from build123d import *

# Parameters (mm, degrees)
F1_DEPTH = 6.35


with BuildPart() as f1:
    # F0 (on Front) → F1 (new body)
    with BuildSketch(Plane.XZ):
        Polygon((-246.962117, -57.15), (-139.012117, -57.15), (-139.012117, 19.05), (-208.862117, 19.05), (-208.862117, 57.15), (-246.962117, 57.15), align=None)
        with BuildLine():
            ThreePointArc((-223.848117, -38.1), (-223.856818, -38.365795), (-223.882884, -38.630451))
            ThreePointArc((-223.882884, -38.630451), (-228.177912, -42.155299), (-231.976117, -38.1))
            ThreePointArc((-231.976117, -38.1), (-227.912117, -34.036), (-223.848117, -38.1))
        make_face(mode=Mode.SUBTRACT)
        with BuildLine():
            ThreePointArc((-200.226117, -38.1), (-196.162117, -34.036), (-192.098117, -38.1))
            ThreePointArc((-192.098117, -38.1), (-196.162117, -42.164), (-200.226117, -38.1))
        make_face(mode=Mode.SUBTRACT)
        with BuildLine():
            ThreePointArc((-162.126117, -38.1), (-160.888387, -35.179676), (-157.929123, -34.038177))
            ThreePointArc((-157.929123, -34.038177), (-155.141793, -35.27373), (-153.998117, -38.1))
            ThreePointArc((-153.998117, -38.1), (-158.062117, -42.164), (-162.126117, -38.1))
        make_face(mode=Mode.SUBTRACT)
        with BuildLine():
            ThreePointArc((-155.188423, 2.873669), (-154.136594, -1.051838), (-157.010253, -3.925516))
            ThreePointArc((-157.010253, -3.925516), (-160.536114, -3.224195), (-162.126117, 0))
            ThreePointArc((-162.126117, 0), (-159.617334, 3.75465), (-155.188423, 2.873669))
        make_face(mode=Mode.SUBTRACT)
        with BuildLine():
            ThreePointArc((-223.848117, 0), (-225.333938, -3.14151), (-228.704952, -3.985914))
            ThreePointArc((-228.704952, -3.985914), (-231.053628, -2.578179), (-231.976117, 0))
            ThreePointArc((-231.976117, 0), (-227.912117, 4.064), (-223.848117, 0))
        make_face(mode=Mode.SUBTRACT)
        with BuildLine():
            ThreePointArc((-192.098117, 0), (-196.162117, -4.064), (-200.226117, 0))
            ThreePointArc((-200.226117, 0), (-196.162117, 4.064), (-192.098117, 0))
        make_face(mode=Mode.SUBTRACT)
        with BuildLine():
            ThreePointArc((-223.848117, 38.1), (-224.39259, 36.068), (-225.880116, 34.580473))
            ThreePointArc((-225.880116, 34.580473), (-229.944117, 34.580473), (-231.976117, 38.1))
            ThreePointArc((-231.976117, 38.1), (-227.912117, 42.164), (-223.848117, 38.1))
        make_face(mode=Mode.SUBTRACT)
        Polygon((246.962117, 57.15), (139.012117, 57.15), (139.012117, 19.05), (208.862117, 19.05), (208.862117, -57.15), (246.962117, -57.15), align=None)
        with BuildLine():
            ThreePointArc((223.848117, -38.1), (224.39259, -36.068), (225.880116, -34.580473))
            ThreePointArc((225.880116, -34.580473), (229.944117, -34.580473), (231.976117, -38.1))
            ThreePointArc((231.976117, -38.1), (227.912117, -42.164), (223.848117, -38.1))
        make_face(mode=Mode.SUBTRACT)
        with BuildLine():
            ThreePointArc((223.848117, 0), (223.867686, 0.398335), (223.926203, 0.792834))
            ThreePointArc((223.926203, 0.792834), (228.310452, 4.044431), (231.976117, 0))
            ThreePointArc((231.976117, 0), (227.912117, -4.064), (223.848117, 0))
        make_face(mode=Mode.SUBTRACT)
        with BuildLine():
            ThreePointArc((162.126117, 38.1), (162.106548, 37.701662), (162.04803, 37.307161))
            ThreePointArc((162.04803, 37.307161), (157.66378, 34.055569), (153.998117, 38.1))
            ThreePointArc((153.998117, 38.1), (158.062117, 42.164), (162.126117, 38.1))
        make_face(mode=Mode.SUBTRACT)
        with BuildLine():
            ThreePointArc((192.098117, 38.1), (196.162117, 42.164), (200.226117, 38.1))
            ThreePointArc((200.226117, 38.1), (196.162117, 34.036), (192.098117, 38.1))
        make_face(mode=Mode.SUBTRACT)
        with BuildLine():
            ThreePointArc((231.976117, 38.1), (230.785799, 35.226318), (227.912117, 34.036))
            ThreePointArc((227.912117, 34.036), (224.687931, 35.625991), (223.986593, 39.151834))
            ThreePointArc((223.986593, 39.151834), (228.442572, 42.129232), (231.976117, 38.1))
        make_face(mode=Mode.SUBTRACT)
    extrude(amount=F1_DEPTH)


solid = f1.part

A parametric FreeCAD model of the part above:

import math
import FreeCAD as App
import Part
import Sketcher
from FreeCAD import Vector
Q = App.Units.Quantity

doc = App.newDocument("Part")
body = doc.addObject("PartDesign::Body", "Body")
body.AllowCompound = True

sketch1 = doc.addObject("Sketcher::SketchObject", "Sketch")
body.addObject(sketch1)
sketch1.AttachmentSupport = (doc.XZ_Plane, [""])
sketch1.MapMode = "FlatFace"
sketch1.addGeometry([
    Part.LineSegment(Vector(-246.962117, -57.15, 0), Vector(-139.012117, -57.15, 0)),
    Part.LineSegment(Vector(-139.012117, -57.15, 0), Vector(-139.012117, 19.05, 0)),
    Part.LineSegment(Vector(-139.012117, 19.05, 0), Vector(-208.862117, 19.05, 0)),
    Part.LineSegment(Vector(-208.862117, 19.05, 0), Vector(-208.862117, 57.15, 0)),
    Part.LineSegment(Vector(-208.862117, 57.15, 0), Vector(-246.962117, 57.15, 0)),
    Part.LineSegment(Vector(-246.962117, 57.15, 0), Vector(-246.962117, -57.15, 0)),
    Part.ArcOfCircle(Part.Circle(Vector(-227.912117, -38.1, 0), Vector(0, 0, 1), 4.064), math.radians(0), math.radians(180)),
    Part.ArcOfCircle(Part.Circle(Vector(-227.912086, -38.100003, 0), Vector(0, 0, 1), 4.063969), math.radians(-7.499912), math.radians(0.00004)),
    Part.ArcOfCircle(Part.Circle(Vector(-227.912117, -38.1, 0), Vector(0, 0, 1), 4.064), math.radians(179.999999), math.radians(352.500107)),
    Part.Circle(Vector(-196.162117, -38.1, 0), Vector(0, 0, 1), 4.064),
    Part.ArcOfCircle(Part.Circle(Vector(-158.062117, -38.1, 0), Vector(0, 0, 1), 4.064), math.radians(180), math.radians(360)),
    Part.ArcOfCircle(Part.Circle(Vector(-158.062117, -38.1, 0), Vector(0, 0, 1), 4.064), math.radians(88.124666), math.radians(179.999996)),
    Part.ArcOfCircle(Part.Circle(Vector(-158.062117, -38.1, 0), Vector(0, 0, 1), 4.064), math.radians(0.000004), math.radians(88.124667)),
    Part.ArcOfCircle(Part.Circle(Vector(-227.912117, 0, 0), Vector(0, 0, 1), 4.064), math.radians(0), math.radians(180)),
    Part.ArcOfCircle(Part.Circle(Vector(-227.912118, 0.000001, 0), Vector(0, 0, 1), 4.064001), math.radians(-101.249807), math.radians(-0.000017)),
    Part.ArcOfCircle(Part.Circle(Vector(-227.912117, -0.000001, 0), Vector(0, 0, 1), 4.064), math.radians(179.999991), math.radians(258.750179)),
    Part.Circle(Vector(-196.162117, 0, 0), Vector(0, 0, 1), 4.064),
    Part.ArcOfCircle(Part.Circle(Vector(-227.912117, 38.1, 0), Vector(0, 0, 1), 4.064), math.radians(0), math.radians(180)),
    Part.ArcOfCircle(Part.Circle(Vector(-227.912119, 38.100001, 0), Vector(0, 0, 1), 4.064002), math.radians(-59.999964), math.radians(-0.000015)),
    Part.ArcOfCircle(Part.Circle(Vector(-227.912116, 38.100001, 0), Vector(0, 0, 1), 4.064), math.radians(-179.999993), math.radians(-59.999996)),
    Part.ArcOfCircle(Part.Circle(Vector(-158.062118, 0, 0), Vector(0, 0, 1), 4.063999), math.radians(44.999741), math.radians(180.000006)),
    Part.ArcOfCircle(Part.Circle(Vector(-158.062117, 0, 0), Vector(0, 0, 1), 4.063999), math.radians(-74.999661), math.radians(44.999758)),
    Part.ArcOfCircle(Part.Circle(Vector(-158.062117, 0, 0), Vector(0, 0, 1), 4.064), math.radians(-179.999997), math.radians(-74.999657)),
    Part.LineSegment(Vector(246.962117, 57.15, 0), Vector(139.012117, 57.15, 0)),
    Part.LineSegment(Vector(139.012117, 57.15, 0), Vector(139.012117, 19.05, 0)),
    Part.LineSegment(Vector(139.012117, 19.05, 0), Vector(208.862117, 19.05, 0)),
    Part.LineSegment(Vector(208.862117, 19.05, 0), Vector(208.862117, -57.15, 0)),
    Part.LineSegment(Vector(208.862117, -57.15, 0), Vector(246.962117, -57.15, 0)),
    Part.LineSegment(Vector(246.962117, -57.15, 0), Vector(246.962117, 57.15, 0)),
    Part.ArcOfCircle(Part.Circle(Vector(227.912117, -38.1, 0), Vector(0, 0, 1), 4.064), math.radians(180), math.radians(360)),
    Part.ArcOfCircle(Part.Circle(Vector(227.912119, -38.100001, 0), Vector(0, 0, 1), 4.064002), math.radians(120.000036), math.radians(179.999985)),
    Part.ArcOfCircle(Part.Circle(Vector(227.912116, -38.100001, 0), Vector(0, 0, 1), 4.064), math.radians(0.000007), math.radians(120.000004)),
    Part.ArcOfCircle(Part.Circle(Vector(227.912117, 0, 0), Vector(0, 0, 1), 4.064), math.radians(180), math.radians(360)),
    Part.ArcOfCircle(Part.Circle(Vector(227.912198, -0.000008, 0), Vector(0, 0, 1), 4.064081), math.radians(168.750302), math.radians(179.999889)),
    Part.ArcOfCircle(Part.Circle(Vector(227.912117, 0, 0), Vector(0, 0, 1), 4.064), math.radians(0.000006), math.radians(168.750182)),
    Part.ArcOfCircle(Part.Circle(Vector(158.062117, 38.1, 0), Vector(0, 0, 1), 4.064), math.radians(0), math.radians(180)),
    Part.ArcOfCircle(Part.Circle(Vector(158.062097, 38.100002, 0), Vector(0, 0, 1), 4.06402), math.radians(-11.249855), math.radians(-0.000027)),
    Part.ArcOfCircle(Part.Circle(Vector(158.062117, 38.1, 0), Vector(0, 0, 1), 4.064), math.radians(-179.999997), math.radians(-11.249887)),
    Part.Circle(Vector(196.162117, 38.1, 0), Vector(0, 0, 1), 4.064),
    Part.ArcOfCircle(Part.Circle(Vector(227.912117, 38.1, 0), Vector(0, 0, 1), 4.064), math.radians(0.000004), math.radians(165.000092)),
    Part.ArcOfCircle(Part.Circle(Vector(227.912117, 38.1, 0), Vector(0, 0, 1), 4.064), math.radians(-90.000002), math.radians(0.000002)),
    Part.ArcOfCircle(Part.Circle(Vector(227.912117, 38.1, 0), Vector(0, 0, 1), 4.064), math.radians(165.000089), math.radians(270.000002)),
], False)
sketch1.addConstraint([
    Sketcher.Constraint("Coincident", 0, 2, 1, 1),
    Sketcher.Constraint("Coincident", 1, 2, 2, 1),
    Sketcher.Constraint("Coincident", 2, 2, 3, 1),
    Sketcher.Constraint("Coincident", 3, 2, 4, 1),
    Sketcher.Constraint("Coincident", 4, 2, 5, 1),
    Sketcher.Constraint("Coincident", 5, 2, 0, 1),
    Sketcher.Constraint("Coincident", 6, 1, 7, 2),
    Sketcher.Constraint("Coincident", 7, 1, 8, 2),
    Sketcher.Constraint("Coincident", 8, 1, 6, 2),
    Sketcher.Constraint("Coincident", 10, 1, 11, 2),
    Sketcher.Constraint("Coincident", 11, 1, 12, 2),
    Sketcher.Constraint("Coincident", 12, 1, 10, 2),
    Sketcher.Constraint("Coincident", 13, 1, 14, 2),
    Sketcher.Constraint("Coincident", 14, 1, 15, 2),
    Sketcher.Constraint("Coincident", 15, 1, 13, 2),
    Sketcher.Constraint("Coincident", 17, 1, 18, 2),
    Sketcher.Constraint("Coincident", 18, 1, 19, 2),
    Sketcher.Constraint("Coincident", 19, 1, 17, 2),
    Sketcher.Constraint("Coincident", 20, 1, 21, 2),
    Sketcher.Constraint("Coincident", 21, 1, 22, 2),
    Sketcher.Constraint("Coincident", 22, 1, 20, 2),
    Sketcher.Constraint("Coincident", 23, 2, 24, 1),
    Sketcher.Constraint("Coincident", 24, 2, 25, 1),
    Sketcher.Constraint("Coincident", 25, 2, 26, 1),
    Sketcher.Constraint("Coincident", 26, 2, 27, 1),
    Sketcher.Constraint("Coincident", 27, 2, 28, 1),
    Sketcher.Constraint("Coincident", 28, 2, 23, 1),
    Sketcher.Constraint("Coincident", 29, 1, 30, 2),
    Sketcher.Constraint("Coincident", 30, 1, 31, 2),
    Sketcher.Constraint("Coincident", 31, 1, 29, 2),
    Sketcher.Constraint("Coincident", 32, 1, 33, 2),
    Sketcher.Constraint("Coincident", 33, 1, 34, 2),
    Sketcher.Constraint("Coincident", 34, 1, 32, 2),
    Sketcher.Constraint("Coincident", 35, 1, 36, 2),
    Sketcher.Constraint("Coincident", 36, 1, 37, 2),
    Sketcher.Constraint("Coincident", 37, 1, 35, 2),
    Sketcher.Constraint("Coincident", 39, 1, 40, 2),
    Sketcher.Constraint("Coincident", 40, 1, 41, 2),
    Sketcher.Constraint("Coincident", 41, 1, 39, 2),
    Sketcher.Constraint("Horizontal", 0),
    Sketcher.Constraint("Vertical", 1),
    Sketcher.Constraint("Horizontal", 2),
    Sketcher.Constraint("Vertical", 3),
    Sketcher.Constraint("Horizontal", 4),
    Sketcher.Constraint("Vertical", 5),
    Sketcher.Constraint("Horizontal", 23),
    Sketcher.Constraint("Vertical", 24),
    Sketcher.Constraint("Horizontal", 25),
    Sketcher.Constraint("Vertical", 26),
    Sketcher.Constraint("Horizontal", 27),
    Sketcher.Constraint("Vertical", 28),
    Sketcher.Constraint("Coincident", 8, 3, 6, 3),
    Sketcher.Constraint("Coincident", 11, 3, 10, 3),
    Sketcher.Constraint("Coincident", 14, 3, 13, 3),
    Sketcher.Constraint("Coincident", 18, 3, 17, 3),
    Sketcher.Constraint("Coincident", 21, 3, 20, 3),
    Sketcher.Constraint("Coincident", 30, 3, 29, 3),
    Sketcher.Constraint("Coincident", 34, 3, 32, 3),
    Sketcher.Constraint("Coincident", 37, 3, 35, 3),
    Sketcher.Constraint("Coincident", 40, 3, 39, 3),
    Sketcher.Constraint("PointOnObject", 13, 3, -1),
    Sketcher.Constraint("PointOnObject", 15, 3, -1),
    Sketcher.Constraint("PointOnObject", 16, 3, -1),
    Sketcher.Constraint("PointOnObject", 20, 3, -1),
    Sketcher.Constraint("PointOnObject", 22, 3, -1),
    Sketcher.Constraint("PointOnObject", 32, 3, -1),
    Sketcher.Constraint("PointOnObject", 13, 1, -1),
    Sketcher.Constraint("PointOnObject", 15, 1, -1),
    Sketcher.Constraint("PointOnObject", 22, 1, -1),
    Sketcher.Constraint("PointOnObject", 32, 1, -1),
    Sketcher.Constraint("PointOnObject", 34, 1, -1),
    Sketcher.Constraint("Diameter", 9, Q("0.32 in")),
    Sketcher.Constraint("Diameter", 16, Q("0.32 in")),
    Sketcher.Constraint("Diameter", 38, Q("0.32 in")),
    Sketcher.Constraint("DistanceY", 1, 1, 1, 2, Q("3 in")),
    Sketcher.Constraint("DistanceY", 26, 2, 26, 1, Q("3 in")),
    Sketcher.Constraint("Radius", 6, Q("0.16 in")),
    Sketcher.Constraint("Radius", 10, Q("0.16 in")),
    Sketcher.Constraint("Radius", 12, Q("0.16 in")),
    Sketcher.Constraint("Radius", 13, Q("0.16 in")),
    Sketcher.Constraint("Radius", 17, Q("0.16 in")),
    Sketcher.Constraint("Radius", 19, Q("0.16 in")),
    Sketcher.Constraint("Radius", 20, Q("0.16 in")),
    Sketcher.Constraint("Radius", 29, Q("0.16 in")),
    Sketcher.Constraint("Radius", 31, Q("0.16 in")),
    Sketcher.Constraint("Radius", 32, Q("0.16 in")),
    Sketcher.Constraint("Radius", 35, Q("0.16 in")),
    Sketcher.Constraint("Radius", 39, Q("0.16 in")),
    Sketcher.Constraint("Radius", 41, Q("0.16 in")),
    Sketcher.Constraint("DistanceX", 4, 2, 4, 1, Q("1.5 in")),
    Sketcher.Constraint("DistanceX", 27, 1, 27, 2, Q("1.5 in")),
    Sketcher.Constraint("DistanceY", 3, 1, 3, 2, Q("1.5 in")),
    Sketcher.Constraint("DistanceY", 24, 2, 24, 1, Q("1.5 in")),
    Sketcher.Constraint("DistanceX", 0, 1, 0, 2, Q("4.25 in")),
    Sketcher.Constraint("DistanceX", 23, 2, 23, 1, Q("4.25 in")),
    Sketcher.Constraint("DistanceY", 6, 3, -1, 1, Q("1.5 in")),
    Sketcher.Constraint("DistanceY", 7, 3, -1, 1, Q("1.5000001 in")),
    Sketcher.Constraint("DistanceY", 9, 3, -1, 1, Q("1.5 in")),
    Sketcher.Constraint("DistanceY", 10, 3, -1, 1, Q("1.5 in")),
    Sketcher.Constraint("DistanceY", -1, 1, 17, 3, Q("1.5 in")),
    Sketcher.Constraint("DistanceY", 29, 3, -1, 1, Q("1.5 in")),
    Sketcher.Constraint("DistanceY", -1, 1, 35, 3, Q("1.5 in")),
    Sketcher.Constraint("DistanceY", -1, 1, 36, 3, Q("1.5000001 in")),
    Sketcher.Constraint("DistanceY", -1, 1, 38, 3, Q("1.5 in")),
    Sketcher.Constraint("DistanceY", -1, 1, 39, 3, Q("1.5 in")),
    Sketcher.Constraint("DistanceY", 6, 1, -1, 1, Q("1.5 in")),
    Sketcher.Constraint("DistanceY", 8, 1, -1, 1, Q("1.5 in")),
    Sketcher.Constraint("DistanceY", 10, 1, -1, 1, Q("1.5 in")),
    Sketcher.Constraint("DistanceY", 12, 1, -1, 1, Q("1.5 in")),
    Sketcher.Constraint("DistanceY", -1, 1, 17, 1, Q("1.5 in")),
    Sketcher.Constraint("DistanceY", -1, 1, 19, 1, Q("1.5 in")),
    Sketcher.Constraint("DistanceY", 29, 1, -1, 1, Q("1.5 in")),
    Sketcher.Constraint("DistanceY", 31, 1, -1, 1, Q("1.5 in")),
    Sketcher.Constraint("DistanceY", -1, 1, 35, 1, Q("1.5 in")),
    Sketcher.Constraint("DistanceY", -1, 1, 37, 1, Q("1.5 in")),
    Sketcher.Constraint("DistanceY", -1, 1, 39, 1, Q("1.5 in")),
    Sketcher.Constraint("DistanceY", 0, 2, -1, 1, Q("2.25 in")),
    Sketcher.Constraint("DistanceY", -1, 1, 23, 2, Q("2.25 in")),
    Sketcher.Constraint("Radius", 33, 4.064081),
    Sketcher.Constraint("DistanceX", -1, 1, 33, 3, 227.912198),
    Sketcher.Constraint("DistanceX", 14, 3, -1, 1, 227.912118),
    Sketcher.Constraint("DistanceX", 18, 3, -1, 1, 227.912119),
    Sketcher.Constraint("DistanceX", -1, 1, 30, 3, 227.912119),
    Sketcher.Constraint("DistanceY", 7, 1, -1, 1, 38.630451),
    Sketcher.Constraint("DistanceX", 14, 1, -1, 1, 228.704952),
    Sketcher.Constraint("DistanceY", -1, 1, 20, 1, 2.873669),
    Sketcher.Constraint("DistanceX", -1, 1, 36, 1, 162.04803),
    Sketcher.Constraint("DistanceY", -1, 1, 36, 1, 37.307161),
    Sketcher.Constraint("DistanceX", 6, 3, -1, 1, 227.912117),
    Sketcher.Constraint("DistanceX", 9, 3, -1, 1, 196.162117),
    Sketcher.Constraint("DistanceX", 10, 3, -1, 1, 158.062117),
    Sketcher.Constraint("DistanceX", 16, 3, -1, 1, 196.162117),
    Sketcher.Constraint("DistanceX", 20, 3, -1, 1, 158.062118),
    Sketcher.Constraint("DistanceX", -1, 1, 38, 3, 196.162117),
    Sketcher.Constraint("DistanceX", -1, 1, 39, 3, 227.912117),
    Sketcher.Constraint("DistanceX", 0, 2, -1, 1, 139.012117),
    Sketcher.Constraint("DistanceX", 11, 1, -1, 1, 157.929123),
    Sketcher.Constraint("DistanceX", 18, 1, -1, 1, 225.880116),
    Sketcher.Constraint("DistanceX", 21, 1, -1, 1, 157.010253),
    Sketcher.Constraint("DistanceX", -1, 1, 23, 2, 139.012117),
    Sketcher.Constraint("DistanceX", -1, 1, 30, 1, 225.880116),
    Sketcher.Constraint("DistanceX", -1, 1, 33, 1, 223.926203),
    Sketcher.Constraint("DistanceX", -1, 1, 40, 1, 227.912117),
    Sketcher.Constraint("DistanceX", -1, 1, 41, 1, 223.986593),
])
pad1 = doc.addObject("PartDesign::Pad", "Pad")
body.addObject(pad1)
pad1.Profile = sketch1
pad1.Length = Q("0.25 in")

doc.recompute()
